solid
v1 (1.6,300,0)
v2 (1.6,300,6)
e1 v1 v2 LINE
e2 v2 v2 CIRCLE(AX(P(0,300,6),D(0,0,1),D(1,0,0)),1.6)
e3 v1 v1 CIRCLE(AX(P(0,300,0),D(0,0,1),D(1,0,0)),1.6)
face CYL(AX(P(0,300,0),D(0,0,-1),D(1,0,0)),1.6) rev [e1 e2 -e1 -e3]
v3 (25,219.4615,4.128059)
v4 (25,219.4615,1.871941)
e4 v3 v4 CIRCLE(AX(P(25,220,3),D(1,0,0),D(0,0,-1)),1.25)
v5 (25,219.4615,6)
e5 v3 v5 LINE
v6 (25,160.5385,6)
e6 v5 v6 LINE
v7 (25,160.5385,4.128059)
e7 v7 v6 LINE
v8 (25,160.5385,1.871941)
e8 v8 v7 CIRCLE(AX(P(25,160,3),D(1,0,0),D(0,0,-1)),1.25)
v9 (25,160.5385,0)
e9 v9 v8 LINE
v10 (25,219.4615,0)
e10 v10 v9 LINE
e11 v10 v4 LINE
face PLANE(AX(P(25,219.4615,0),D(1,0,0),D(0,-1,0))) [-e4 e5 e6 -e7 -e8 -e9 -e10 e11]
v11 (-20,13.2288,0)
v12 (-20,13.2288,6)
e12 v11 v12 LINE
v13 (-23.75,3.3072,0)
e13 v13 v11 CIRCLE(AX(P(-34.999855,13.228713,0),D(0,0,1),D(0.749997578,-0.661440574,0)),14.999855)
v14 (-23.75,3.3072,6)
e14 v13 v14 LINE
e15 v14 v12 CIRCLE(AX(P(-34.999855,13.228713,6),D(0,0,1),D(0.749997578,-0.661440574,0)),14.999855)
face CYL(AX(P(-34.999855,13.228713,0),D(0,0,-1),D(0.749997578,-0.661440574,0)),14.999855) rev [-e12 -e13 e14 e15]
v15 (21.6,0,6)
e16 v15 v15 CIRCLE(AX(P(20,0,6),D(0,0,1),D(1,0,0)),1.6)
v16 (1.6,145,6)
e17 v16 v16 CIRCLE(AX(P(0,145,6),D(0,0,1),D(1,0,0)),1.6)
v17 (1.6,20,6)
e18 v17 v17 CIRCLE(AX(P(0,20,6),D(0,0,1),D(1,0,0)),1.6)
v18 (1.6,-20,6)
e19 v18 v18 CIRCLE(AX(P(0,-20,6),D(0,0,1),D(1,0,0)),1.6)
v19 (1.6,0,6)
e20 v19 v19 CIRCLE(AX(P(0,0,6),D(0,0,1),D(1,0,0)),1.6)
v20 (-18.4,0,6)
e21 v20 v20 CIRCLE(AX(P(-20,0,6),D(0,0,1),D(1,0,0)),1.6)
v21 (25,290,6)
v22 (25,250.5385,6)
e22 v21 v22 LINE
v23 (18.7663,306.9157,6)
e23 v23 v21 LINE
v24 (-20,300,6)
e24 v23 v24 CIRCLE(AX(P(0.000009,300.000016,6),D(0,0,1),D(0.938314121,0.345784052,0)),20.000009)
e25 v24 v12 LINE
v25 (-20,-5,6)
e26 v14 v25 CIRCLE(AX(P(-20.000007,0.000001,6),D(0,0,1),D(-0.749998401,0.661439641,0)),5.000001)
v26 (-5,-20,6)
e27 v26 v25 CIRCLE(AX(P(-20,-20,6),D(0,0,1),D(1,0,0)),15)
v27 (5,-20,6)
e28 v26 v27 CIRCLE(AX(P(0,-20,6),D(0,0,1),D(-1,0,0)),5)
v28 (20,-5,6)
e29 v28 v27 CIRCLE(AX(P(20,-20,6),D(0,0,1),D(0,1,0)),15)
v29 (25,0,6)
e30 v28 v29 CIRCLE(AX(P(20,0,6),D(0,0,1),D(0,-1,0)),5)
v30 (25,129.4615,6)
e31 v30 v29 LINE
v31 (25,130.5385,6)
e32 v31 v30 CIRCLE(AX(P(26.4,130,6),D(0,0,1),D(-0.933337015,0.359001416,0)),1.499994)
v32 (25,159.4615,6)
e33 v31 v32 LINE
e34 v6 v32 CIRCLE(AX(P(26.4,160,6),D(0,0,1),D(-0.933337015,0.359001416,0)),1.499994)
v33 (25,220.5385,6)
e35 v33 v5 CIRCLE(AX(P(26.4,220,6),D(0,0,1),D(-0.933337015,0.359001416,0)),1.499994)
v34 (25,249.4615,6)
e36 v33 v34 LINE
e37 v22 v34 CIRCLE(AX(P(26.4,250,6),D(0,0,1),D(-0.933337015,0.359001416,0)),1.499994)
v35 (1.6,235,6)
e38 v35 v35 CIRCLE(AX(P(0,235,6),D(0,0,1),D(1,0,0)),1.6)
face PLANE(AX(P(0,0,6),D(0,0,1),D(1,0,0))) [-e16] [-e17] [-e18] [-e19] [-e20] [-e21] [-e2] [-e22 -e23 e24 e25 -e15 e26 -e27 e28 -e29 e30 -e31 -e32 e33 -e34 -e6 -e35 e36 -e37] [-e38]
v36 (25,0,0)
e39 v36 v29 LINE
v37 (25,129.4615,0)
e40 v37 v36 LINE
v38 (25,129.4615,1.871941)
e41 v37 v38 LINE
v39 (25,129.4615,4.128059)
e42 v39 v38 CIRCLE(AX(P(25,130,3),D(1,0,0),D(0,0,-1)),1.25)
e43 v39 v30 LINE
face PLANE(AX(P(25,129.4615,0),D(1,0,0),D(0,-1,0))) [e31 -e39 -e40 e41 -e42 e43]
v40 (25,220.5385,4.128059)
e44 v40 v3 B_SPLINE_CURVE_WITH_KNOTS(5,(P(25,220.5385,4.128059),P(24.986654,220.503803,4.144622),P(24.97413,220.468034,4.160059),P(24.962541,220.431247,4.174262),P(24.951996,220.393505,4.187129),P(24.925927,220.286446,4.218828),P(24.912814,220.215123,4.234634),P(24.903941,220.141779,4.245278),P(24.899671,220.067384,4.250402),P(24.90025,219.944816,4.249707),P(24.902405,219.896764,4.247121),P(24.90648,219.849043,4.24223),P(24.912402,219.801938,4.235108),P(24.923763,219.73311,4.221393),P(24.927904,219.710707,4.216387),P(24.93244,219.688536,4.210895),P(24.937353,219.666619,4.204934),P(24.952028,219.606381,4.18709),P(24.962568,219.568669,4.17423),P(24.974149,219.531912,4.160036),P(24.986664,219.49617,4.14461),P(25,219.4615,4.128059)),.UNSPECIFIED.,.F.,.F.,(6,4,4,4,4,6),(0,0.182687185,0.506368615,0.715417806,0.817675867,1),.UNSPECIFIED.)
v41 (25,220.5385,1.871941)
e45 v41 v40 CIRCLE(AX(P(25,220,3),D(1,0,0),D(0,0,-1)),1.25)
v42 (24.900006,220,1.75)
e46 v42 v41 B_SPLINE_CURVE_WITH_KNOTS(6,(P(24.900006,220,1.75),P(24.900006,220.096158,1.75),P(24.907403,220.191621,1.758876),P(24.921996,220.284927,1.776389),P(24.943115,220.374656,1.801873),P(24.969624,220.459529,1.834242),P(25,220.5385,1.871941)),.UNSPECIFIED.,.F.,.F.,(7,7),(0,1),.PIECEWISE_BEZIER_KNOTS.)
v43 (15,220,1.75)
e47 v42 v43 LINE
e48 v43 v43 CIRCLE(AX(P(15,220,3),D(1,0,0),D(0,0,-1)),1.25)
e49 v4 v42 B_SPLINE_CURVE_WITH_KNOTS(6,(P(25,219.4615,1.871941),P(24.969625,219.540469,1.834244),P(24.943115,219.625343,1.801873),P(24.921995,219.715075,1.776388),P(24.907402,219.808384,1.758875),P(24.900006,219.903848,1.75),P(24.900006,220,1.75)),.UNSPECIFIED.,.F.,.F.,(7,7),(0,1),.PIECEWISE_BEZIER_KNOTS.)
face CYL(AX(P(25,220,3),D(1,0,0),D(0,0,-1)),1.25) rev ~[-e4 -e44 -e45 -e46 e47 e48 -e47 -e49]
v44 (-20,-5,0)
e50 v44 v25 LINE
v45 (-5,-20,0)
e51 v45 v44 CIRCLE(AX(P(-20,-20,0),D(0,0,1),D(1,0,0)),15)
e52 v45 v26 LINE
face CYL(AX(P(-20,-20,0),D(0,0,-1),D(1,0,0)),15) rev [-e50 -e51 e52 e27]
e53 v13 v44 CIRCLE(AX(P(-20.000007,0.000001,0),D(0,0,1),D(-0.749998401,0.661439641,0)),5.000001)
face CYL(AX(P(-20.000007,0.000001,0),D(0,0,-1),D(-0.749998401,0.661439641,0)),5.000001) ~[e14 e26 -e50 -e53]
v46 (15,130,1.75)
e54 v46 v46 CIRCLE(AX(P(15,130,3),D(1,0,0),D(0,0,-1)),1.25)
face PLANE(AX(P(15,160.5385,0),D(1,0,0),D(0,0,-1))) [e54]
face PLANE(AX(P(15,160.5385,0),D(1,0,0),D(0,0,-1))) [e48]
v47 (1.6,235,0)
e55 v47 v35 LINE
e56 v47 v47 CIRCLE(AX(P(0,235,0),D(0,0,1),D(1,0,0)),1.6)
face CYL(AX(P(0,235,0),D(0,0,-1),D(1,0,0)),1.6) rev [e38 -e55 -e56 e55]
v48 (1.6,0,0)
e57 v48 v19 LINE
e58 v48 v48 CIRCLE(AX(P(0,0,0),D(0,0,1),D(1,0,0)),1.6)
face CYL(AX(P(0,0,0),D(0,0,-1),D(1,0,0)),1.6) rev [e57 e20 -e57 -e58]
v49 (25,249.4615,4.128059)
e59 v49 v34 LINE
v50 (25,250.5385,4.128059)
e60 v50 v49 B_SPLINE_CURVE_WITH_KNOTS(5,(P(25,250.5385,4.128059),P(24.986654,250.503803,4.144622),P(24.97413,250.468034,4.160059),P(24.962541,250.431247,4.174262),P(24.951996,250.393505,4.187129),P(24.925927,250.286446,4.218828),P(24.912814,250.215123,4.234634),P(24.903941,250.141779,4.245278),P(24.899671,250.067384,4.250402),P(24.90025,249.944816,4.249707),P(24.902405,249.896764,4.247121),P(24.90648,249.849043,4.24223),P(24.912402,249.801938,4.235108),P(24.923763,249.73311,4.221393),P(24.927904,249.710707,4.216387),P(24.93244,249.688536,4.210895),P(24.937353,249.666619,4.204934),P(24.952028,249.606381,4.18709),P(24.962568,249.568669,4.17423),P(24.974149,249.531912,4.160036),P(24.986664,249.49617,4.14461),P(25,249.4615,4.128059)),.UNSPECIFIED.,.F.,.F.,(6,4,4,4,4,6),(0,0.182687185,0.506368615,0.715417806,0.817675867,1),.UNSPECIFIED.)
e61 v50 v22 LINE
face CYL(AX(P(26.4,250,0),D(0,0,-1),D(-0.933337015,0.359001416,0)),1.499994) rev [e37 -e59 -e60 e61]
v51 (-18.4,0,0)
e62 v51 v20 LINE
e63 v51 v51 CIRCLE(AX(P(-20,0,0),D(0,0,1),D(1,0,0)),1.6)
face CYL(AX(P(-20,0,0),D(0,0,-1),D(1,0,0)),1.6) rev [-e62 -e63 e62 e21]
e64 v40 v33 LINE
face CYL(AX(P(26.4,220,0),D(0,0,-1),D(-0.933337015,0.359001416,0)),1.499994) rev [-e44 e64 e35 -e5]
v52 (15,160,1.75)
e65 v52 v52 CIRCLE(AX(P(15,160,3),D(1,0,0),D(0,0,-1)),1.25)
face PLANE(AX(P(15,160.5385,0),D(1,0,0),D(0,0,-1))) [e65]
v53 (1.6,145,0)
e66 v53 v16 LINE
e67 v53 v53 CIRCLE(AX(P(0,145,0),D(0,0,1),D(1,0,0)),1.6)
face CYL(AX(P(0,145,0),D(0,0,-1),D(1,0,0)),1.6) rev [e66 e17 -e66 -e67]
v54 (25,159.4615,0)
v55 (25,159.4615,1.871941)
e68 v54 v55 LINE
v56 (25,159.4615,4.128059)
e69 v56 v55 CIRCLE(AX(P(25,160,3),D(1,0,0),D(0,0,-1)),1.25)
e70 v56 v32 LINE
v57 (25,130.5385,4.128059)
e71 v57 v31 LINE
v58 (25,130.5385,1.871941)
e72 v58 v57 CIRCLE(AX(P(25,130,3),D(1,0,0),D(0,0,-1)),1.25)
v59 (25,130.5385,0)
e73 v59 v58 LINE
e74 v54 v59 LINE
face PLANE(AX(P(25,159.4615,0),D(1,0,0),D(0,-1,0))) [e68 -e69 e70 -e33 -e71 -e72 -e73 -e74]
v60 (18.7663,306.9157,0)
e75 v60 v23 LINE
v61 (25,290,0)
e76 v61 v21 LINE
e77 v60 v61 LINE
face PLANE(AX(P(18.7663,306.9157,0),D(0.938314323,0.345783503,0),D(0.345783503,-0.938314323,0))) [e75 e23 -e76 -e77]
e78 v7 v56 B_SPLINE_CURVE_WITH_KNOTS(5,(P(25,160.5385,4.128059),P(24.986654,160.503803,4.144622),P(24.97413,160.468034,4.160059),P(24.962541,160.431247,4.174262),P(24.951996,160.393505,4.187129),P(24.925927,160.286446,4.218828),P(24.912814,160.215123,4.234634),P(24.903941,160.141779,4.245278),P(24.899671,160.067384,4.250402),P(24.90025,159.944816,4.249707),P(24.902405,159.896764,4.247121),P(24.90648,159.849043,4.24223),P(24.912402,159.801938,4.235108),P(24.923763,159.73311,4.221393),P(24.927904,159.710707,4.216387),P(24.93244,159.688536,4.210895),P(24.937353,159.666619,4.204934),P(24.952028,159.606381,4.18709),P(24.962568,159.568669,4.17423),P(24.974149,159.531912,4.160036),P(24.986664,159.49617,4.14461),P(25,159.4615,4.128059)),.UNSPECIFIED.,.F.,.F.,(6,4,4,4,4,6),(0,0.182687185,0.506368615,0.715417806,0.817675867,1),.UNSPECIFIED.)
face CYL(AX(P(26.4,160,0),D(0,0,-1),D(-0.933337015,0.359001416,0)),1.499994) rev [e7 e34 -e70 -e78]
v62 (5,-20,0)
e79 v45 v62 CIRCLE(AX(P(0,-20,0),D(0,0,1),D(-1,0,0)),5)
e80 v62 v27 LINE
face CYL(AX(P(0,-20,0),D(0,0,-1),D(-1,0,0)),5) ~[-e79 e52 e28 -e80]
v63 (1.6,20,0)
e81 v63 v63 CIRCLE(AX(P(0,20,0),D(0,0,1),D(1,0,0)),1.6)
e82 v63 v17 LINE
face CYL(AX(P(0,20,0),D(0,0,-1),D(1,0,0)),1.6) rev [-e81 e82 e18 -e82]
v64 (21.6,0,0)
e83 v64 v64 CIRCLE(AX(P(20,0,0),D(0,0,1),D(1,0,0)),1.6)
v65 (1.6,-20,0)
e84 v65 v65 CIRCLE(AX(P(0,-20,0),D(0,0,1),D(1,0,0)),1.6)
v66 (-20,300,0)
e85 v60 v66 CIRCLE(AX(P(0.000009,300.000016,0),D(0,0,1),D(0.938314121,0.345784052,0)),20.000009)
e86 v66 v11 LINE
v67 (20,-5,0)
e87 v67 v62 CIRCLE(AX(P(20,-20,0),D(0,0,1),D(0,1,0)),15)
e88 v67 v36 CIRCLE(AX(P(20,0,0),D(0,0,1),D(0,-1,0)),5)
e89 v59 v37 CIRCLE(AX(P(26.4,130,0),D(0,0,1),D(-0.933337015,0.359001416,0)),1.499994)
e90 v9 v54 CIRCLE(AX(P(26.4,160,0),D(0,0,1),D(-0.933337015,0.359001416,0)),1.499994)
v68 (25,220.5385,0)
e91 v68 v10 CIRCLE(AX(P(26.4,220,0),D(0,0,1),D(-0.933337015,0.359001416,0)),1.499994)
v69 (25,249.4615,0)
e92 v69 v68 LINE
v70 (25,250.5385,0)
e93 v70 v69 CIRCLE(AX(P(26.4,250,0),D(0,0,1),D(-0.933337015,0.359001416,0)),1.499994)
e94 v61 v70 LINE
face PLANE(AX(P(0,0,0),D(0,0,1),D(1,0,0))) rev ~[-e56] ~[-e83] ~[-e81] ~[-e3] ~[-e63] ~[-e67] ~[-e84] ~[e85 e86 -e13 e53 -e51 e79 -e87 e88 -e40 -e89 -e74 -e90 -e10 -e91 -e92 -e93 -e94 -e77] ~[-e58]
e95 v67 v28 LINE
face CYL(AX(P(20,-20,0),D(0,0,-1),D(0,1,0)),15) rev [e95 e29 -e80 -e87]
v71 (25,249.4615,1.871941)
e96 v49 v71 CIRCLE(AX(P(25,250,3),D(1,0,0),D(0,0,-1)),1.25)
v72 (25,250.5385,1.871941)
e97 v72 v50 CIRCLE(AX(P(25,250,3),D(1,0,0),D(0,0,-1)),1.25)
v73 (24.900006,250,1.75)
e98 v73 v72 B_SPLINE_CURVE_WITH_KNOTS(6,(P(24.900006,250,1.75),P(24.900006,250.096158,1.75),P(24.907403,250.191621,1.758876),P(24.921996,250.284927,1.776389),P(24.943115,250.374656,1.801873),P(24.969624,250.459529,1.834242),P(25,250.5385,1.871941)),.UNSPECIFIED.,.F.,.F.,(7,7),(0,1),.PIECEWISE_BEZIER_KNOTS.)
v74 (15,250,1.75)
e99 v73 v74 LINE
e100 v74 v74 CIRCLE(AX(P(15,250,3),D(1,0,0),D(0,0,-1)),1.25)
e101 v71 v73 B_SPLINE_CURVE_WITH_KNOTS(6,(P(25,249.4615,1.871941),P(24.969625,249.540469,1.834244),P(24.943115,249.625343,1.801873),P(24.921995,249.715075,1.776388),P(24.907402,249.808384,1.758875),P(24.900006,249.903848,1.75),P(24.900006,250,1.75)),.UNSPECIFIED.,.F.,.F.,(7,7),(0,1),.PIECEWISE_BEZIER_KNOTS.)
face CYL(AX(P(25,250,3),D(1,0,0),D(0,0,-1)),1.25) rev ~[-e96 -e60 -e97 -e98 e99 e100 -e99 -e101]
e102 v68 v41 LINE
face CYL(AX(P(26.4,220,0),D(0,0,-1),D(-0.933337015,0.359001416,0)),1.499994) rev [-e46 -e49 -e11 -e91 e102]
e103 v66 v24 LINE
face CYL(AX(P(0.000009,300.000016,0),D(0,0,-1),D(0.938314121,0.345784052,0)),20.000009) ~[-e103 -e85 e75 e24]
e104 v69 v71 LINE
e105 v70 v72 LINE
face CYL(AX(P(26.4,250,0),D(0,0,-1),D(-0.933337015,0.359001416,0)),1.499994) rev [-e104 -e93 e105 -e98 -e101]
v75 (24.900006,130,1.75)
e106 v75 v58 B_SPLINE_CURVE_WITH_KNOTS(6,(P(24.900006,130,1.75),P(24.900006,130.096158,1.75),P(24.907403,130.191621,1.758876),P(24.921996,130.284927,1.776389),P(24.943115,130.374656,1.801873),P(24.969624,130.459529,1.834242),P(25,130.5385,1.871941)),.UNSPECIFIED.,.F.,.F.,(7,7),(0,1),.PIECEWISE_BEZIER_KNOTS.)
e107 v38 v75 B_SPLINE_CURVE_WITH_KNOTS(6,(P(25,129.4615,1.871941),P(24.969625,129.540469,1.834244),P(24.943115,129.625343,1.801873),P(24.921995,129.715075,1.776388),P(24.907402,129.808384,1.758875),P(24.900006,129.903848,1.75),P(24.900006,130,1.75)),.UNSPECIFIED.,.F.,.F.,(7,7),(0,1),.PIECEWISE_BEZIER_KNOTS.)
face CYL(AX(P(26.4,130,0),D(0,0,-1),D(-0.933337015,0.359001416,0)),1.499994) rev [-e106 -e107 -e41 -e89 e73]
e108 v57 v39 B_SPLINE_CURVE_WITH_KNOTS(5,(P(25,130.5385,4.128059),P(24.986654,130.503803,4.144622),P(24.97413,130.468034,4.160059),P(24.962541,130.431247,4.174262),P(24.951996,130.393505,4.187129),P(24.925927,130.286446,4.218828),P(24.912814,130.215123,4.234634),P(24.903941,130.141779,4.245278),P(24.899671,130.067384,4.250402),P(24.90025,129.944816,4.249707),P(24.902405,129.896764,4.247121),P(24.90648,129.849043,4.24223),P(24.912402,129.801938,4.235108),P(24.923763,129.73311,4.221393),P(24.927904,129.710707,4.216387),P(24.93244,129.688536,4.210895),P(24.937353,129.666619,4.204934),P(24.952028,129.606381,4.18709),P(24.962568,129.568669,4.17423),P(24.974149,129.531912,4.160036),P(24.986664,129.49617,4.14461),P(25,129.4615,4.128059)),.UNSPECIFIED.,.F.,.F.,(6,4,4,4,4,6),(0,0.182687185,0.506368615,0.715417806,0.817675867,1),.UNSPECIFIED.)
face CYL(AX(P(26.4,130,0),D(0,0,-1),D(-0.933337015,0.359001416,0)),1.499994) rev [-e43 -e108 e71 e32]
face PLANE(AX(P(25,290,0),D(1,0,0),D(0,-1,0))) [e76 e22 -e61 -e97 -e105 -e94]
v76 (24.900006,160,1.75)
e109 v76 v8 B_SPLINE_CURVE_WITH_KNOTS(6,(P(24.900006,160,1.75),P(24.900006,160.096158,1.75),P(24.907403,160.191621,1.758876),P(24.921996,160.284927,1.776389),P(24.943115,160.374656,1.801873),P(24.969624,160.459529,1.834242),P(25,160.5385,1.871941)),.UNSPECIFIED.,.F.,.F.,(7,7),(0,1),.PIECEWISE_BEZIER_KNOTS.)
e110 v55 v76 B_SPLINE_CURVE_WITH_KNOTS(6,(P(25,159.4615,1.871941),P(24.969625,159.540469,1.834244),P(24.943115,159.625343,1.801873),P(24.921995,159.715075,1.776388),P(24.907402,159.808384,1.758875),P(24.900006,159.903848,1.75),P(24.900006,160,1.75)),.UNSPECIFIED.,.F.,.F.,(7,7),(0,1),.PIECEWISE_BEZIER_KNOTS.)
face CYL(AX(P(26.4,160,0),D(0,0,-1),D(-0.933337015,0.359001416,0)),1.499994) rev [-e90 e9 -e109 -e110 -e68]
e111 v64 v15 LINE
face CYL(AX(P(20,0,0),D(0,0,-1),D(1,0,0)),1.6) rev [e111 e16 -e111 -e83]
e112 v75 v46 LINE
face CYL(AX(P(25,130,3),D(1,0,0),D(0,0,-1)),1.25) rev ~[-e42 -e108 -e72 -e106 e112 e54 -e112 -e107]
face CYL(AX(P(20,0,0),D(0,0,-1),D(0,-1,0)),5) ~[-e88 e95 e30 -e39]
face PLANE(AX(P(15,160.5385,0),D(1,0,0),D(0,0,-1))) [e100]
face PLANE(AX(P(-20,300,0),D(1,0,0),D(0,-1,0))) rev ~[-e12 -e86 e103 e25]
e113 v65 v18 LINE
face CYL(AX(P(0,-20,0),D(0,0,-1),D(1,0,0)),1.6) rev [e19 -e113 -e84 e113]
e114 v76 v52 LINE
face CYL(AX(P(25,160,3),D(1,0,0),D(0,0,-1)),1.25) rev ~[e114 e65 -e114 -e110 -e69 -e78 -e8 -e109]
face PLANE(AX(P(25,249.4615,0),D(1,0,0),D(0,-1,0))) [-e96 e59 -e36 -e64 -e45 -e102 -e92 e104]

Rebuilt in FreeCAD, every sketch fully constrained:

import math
import FreeCAD as App
import Part
import Sketcher
from FreeCAD import Vector
Q = App.Units.Quantity

doc = App.newDocument("Part")
body = doc.addObject("PartDesign::Body", "Body")

sketch1 = doc.addObject("Sketcher::SketchObject", "Sketch")
body.addObject(sketch1)
sketch1.AttachmentSupport = (doc.XY_Plane, [""])
sketch1.MapMode = "FlatFace"
sketch1.addGeometry([
    Part.LineSegment(Vector(25, 290, 0), Vector(18.8, 306.9, 0)),
    Part.ArcOfCircle(Part.Circle(Vector(0, 300, 0), Vector(0, 0, 1), 20), math.radians(20), math.radians(180)),
    Part.LineSegment(Vector(-20, 300, 0), Vector(-20, 13.2, 0)),
    Part.ArcOfCircle(Part.Circle(Vector(-35, 13.2, 0), Vector(0, 0, 1), 15), math.radians(-41), math.radians(0)),
    Part.ArcOfCircle(Part.Circle(Vector(-20, 0, 0), Vector(0, 0, 1), 5), math.radians(139), math.radians(270)),
    Part.ArcOfCircle(Part.Circle(Vector(-20, -20, 0), Vector(0, 0, 1), 15), math.radians(0), math.radians(90)),
    Part.ArcOfCircle(Part.Circle(Vector(0, -20, 0), Vector(0, 0, 1), 5), math.radians(180), math.radians(360)),
    Part.ArcOfCircle(Part.Circle(Vector(20, -20, 0), Vector(0, 0, 1), 15), math.radians(90), math.radians(180)),
    Part.ArcOfCircle(Part.Circle(Vector(20, 0, 0), Vector(0, 0, 1), 5), math.radians(-90), math.radians(0)),
    Part.LineSegment(Vector(25, 0, 0), Vector(25, 129.5, 0)),
    Part.ArcOfCircle(Part.Circle(Vector(26.4, 130, 0), Vector(0, 0, 1), 1.5), math.radians(159), math.radians(201)),
    Part.LineSegment(Vector(25, 130.5, 0), Vector(25, 159.5, 0)),
    Part.ArcOfCircle(Part.Circle(Vector(26.4, 160, 0), Vector(0, 0, 1), 1.5), math.radians(159), math.radians(201)),
    Part.LineSegment(Vector(25, 160.5, 0), Vector(25, 219.5, 0)),
    Part.ArcOfCircle(Part.Circle(Vector(26.4, 220, 0), Vector(0, 0, 1), 1.5), math.radians(159), math.radians(201)),
    Part.LineSegment(Vector(25, 220.5, 0), Vector(25, 249.5, 0)),
    Part.ArcOfCircle(Part.Circle(Vector(26.4, 250, 0), Vector(0, 0, 1), 1.5), math.radians(159), math.radians(201)),
    Part.LineSegment(Vector(25, 250.5, 0), Vector(25, 290, 0)),
    Part.Circle(Vector(-20, 0, 0), Vector(0, 0, 1), 1.6),
    Part.Circle(Vector(0, -20, 0), Vector(0, 0, 1), 1.6),
    Part.Circle(Vector(0, 0, 0), Vector(0, 0, 1), 1.6),
    Part.Circle(Vector(0, 20, 0), Vector(0, 0, 1), 1.6),
    Part.Circle(Vector(20, 0, 0), Vector(0, 0, 1), 1.6),
    Part.Circle(Vector(0, 145, 0), Vector(0, 0, 1), 1.6),
    Part.Circle(Vector(0, 235, 0), Vector(0, 0, 1), 1.6),
    Part.Circle(Vector(0, 300, 0), Vector(0, 0, 1), 1.6),
], False)
sketch1.addConstraint([
    Sketcher.Constraint("Tangent", 0, 2, 1, 1),
    Sketcher.Constraint("Tangent", 1, 2, 2, 1),
    Sketcher.Constraint("Tangent", 2, 2, 3, 2),
    Sketcher.Constraint("Tangent", 3, 1, 4, 1),
    Sketcher.Constraint("Tangent", 4, 2, 5, 2),
    Sketcher.Constraint("Tangent", 5, 1, 6, 1),
    Sketcher.Constraint("Tangent", 6, 2, 7, 2),
    Sketcher.Constraint("Tangent", 7, 1, 8, 1),
    Sketcher.Constraint("Tangent", 8, 2, 9, 1),
    Sketcher.Constraint("Coincident", 9, 2, 10, 2),
    Sketcher.Constraint("Coincident", 10, 1, 11, 1),
    Sketcher.Constraint("Coincident", 11, 2, 12, 2),
    Sketcher.Constraint("Coincident", 12, 1, 13, 1),
    Sketcher.Constraint("Coincident", 13, 2, 14, 2),
    Sketcher.Constraint("Coincident", 14, 1, 15, 1),
    Sketcher.Constraint("Coincident", 15, 2, 16, 2),
    Sketcher.Constraint("Coincident", 16, 1, 17, 1),
    Sketcher.Constraint("Coincident", 17, 2, 0, 1),
    Sketcher.Constraint("Vertical", 2),
    Sketcher.Constraint("Vertical", 9),
    Sketcher.Constraint("Vertical", 11),
    Sketcher.Constraint("Vertical", 13),
    Sketcher.Constraint("Vertical", 15),
    Sketcher.Constraint("Vertical", 17),
    Sketcher.Constraint("Coincident", 20, 3, -1, 1),
    Sketcher.Constraint("Coincident", 18, 3, 4, 3),
    Sketcher.Constraint("Coincident", 19, 3, 6, 3),
    Sketcher.Constraint("Coincident", 22, 3, 8, 3),
    Sketcher.Constraint("Coincident", 25, 3, 1, 3),
    Sketcher.Constraint("Equal", 3, 5),
    Sketcher.Constraint("Equal", 4, 6),
    Sketcher.Constraint("Equal", 5, 7),
    Sketcher.Constraint("Equal", 6, 8),
    Sketcher.Constraint("Equal", 10, 12),
    Sketcher.Constraint("Equal", 12, 14),
    Sketcher.Constraint("Equal", 14, 16),
    Sketcher.Constraint("Equal", 18, 19),
    Sketcher.Constraint("Equal", 19, 20),
    Sketcher.Constraint("Equal", 20, 21),
    Sketcher.Constraint("Equal", 21, 22),
    Sketcher.Constraint("Equal", 22, 23),
    Sketcher.Constraint("Equal", 23, 24),
    Sketcher.Constraint("Equal", 24, 25),
    Sketcher.Constraint("Symmetric", 4, 3, 8, 3, -1, 1),
    Sketcher.Constraint("Symmetric", 6, 3, 21, 3, -1, 1),
    Sketcher.Constraint("Symmetric", 5, 3, 7, 3, -2),
    Sketcher.Constraint("PointOnObject", 1, 3, -2),
    Sketcher.Constraint("PointOnObject", 23, 3, -2),
    Sketcher.Constraint("PointOnObject", 24, 3, -2),
    Sketcher.Constraint("Horizontal", 5, 3, 6, 3),
    Sketcher.Constraint("Vertical", 4, 3, 5, 3),
    Sketcher.Constraint("Vertical", 10, 3, 12, 3),
    Sketcher.Constraint("Vertical", 12, 3, 14, 3),
    Sketcher.Constraint("Vertical", 14, 3, 16, 3),
    Sketcher.Constraint("Vertical", 18, 3, 1, 2),
    Sketcher.Constraint("Vertical", 9, 2, 10, 1),
    Sketcher.Constraint("Vertical", 11, 2, 12, 1),
    Sketcher.Constraint("Vertical", 13, 2, 14, 1),
    Sketcher.Constraint("Vertical", 15, 2, 16, 1),
    Sketcher.Constraint("Equal", 11, 15),
    Sketcher.Constraint("Radius", 1, Q("20 mm")),
    Sketcher.Constraint("Radius", 3, Q("15 mm")),
    Sketcher.Constraint("Diameter", 18, Q("3.2 mm")),
    Sketcher.Constraint("Radius", 10, Q("1.5 mm")),
    Sketcher.Constraint("DistanceY", -1, 1, 1, 3, Q("300 mm")),
    Sketcher.Constraint("DistanceY", 10, 3, 12, 3, Q("30 mm")),
    Sketcher.Constraint("DistanceY", 12, 3, 14, 3, Q("60 mm")),
    Sketcher.Constraint("DistanceY", 16, 3, 1, 3, Q("50 mm")),
    Sketcher.Constraint("DistanceY", 10, 3, 23, 3, Q("15 mm")),
    Sketcher.Constraint("DistanceY", 14, 3, 24, 3, Q("15 mm")),
    Sketcher.Constraint("DistanceY", 17, 2, 1, 3, Q("10 mm")),
    Sketcher.Constraint("DistanceX", 9, 2, 10, 3, Q("1.4 mm")),
])
pad1 = doc.addObject("PartDesign::Pad", "Pad")
body.addObject(pad1)
pad1.Profile = sketch1
pad1.Length = 6

sketch2 = doc.addObject("Sketcher::SketchObject", "Sketch001")
body.addObject(sketch2)
sketch2.AttachmentSupport = (doc.YZ_Plane, [""])
sketch2.MapMode = "FlatFace"
sketch2.AttachmentOffset = App.Placement(Vector(0, 0, 25), App.Rotation())
sketch2.addGeometry([
    Part.Circle(Vector(160, 3, 0), Vector(0, 0, 1), 1.2),
    Part.Circle(Vector(130, 3, 0), Vector(0, 0, 1), 1.2),
    Part.Circle(Vector(220, 3, 0), Vector(0, 0, 1), 1.2),
    Part.Circle(Vector(250, 3, 0), Vector(0, 0, 1), 1.2),
], False)
sketch2.addConstraint([
    Sketcher.Constraint("Equal", 0, 1),
    Sketcher.Constraint("Equal", 1, 2),
    Sketcher.Constraint("Equal", 2, 3),
    Sketcher.Constraint("Horizontal", 0, 3, 1, 3),
    Sketcher.Constraint("Horizontal", 1, 3, 2, 3),
    Sketcher.Constraint("Horizontal", 2, 3, 3, 3),
    Sketcher.Constraint("Diameter", 0, Q("2.5 mm")),
    Sketcher.Constraint("DistanceY", -1, 1, 0, 3, Q("3 mm")),
    Sketcher.Constraint("DistanceX", -1, 1, 0, 3, Q("160 mm")),
    Sketcher.Constraint("DistanceX", -1, 1, 1, 3, Q("130 mm")),
    Sketcher.Constraint("DistanceX", -1, 1, 2, 3, Q("220 mm")),
    Sketcher.Constraint("DistanceX", -1, 1, 3, 3, Q("250 mm")),
])
pocket1 = doc.addObject("PartDesign::Pocket", "Pocket")
body.addObject(pocket1)
pocket1.Profile = sketch2
pocket1.Length = 10

doc.recompute()
